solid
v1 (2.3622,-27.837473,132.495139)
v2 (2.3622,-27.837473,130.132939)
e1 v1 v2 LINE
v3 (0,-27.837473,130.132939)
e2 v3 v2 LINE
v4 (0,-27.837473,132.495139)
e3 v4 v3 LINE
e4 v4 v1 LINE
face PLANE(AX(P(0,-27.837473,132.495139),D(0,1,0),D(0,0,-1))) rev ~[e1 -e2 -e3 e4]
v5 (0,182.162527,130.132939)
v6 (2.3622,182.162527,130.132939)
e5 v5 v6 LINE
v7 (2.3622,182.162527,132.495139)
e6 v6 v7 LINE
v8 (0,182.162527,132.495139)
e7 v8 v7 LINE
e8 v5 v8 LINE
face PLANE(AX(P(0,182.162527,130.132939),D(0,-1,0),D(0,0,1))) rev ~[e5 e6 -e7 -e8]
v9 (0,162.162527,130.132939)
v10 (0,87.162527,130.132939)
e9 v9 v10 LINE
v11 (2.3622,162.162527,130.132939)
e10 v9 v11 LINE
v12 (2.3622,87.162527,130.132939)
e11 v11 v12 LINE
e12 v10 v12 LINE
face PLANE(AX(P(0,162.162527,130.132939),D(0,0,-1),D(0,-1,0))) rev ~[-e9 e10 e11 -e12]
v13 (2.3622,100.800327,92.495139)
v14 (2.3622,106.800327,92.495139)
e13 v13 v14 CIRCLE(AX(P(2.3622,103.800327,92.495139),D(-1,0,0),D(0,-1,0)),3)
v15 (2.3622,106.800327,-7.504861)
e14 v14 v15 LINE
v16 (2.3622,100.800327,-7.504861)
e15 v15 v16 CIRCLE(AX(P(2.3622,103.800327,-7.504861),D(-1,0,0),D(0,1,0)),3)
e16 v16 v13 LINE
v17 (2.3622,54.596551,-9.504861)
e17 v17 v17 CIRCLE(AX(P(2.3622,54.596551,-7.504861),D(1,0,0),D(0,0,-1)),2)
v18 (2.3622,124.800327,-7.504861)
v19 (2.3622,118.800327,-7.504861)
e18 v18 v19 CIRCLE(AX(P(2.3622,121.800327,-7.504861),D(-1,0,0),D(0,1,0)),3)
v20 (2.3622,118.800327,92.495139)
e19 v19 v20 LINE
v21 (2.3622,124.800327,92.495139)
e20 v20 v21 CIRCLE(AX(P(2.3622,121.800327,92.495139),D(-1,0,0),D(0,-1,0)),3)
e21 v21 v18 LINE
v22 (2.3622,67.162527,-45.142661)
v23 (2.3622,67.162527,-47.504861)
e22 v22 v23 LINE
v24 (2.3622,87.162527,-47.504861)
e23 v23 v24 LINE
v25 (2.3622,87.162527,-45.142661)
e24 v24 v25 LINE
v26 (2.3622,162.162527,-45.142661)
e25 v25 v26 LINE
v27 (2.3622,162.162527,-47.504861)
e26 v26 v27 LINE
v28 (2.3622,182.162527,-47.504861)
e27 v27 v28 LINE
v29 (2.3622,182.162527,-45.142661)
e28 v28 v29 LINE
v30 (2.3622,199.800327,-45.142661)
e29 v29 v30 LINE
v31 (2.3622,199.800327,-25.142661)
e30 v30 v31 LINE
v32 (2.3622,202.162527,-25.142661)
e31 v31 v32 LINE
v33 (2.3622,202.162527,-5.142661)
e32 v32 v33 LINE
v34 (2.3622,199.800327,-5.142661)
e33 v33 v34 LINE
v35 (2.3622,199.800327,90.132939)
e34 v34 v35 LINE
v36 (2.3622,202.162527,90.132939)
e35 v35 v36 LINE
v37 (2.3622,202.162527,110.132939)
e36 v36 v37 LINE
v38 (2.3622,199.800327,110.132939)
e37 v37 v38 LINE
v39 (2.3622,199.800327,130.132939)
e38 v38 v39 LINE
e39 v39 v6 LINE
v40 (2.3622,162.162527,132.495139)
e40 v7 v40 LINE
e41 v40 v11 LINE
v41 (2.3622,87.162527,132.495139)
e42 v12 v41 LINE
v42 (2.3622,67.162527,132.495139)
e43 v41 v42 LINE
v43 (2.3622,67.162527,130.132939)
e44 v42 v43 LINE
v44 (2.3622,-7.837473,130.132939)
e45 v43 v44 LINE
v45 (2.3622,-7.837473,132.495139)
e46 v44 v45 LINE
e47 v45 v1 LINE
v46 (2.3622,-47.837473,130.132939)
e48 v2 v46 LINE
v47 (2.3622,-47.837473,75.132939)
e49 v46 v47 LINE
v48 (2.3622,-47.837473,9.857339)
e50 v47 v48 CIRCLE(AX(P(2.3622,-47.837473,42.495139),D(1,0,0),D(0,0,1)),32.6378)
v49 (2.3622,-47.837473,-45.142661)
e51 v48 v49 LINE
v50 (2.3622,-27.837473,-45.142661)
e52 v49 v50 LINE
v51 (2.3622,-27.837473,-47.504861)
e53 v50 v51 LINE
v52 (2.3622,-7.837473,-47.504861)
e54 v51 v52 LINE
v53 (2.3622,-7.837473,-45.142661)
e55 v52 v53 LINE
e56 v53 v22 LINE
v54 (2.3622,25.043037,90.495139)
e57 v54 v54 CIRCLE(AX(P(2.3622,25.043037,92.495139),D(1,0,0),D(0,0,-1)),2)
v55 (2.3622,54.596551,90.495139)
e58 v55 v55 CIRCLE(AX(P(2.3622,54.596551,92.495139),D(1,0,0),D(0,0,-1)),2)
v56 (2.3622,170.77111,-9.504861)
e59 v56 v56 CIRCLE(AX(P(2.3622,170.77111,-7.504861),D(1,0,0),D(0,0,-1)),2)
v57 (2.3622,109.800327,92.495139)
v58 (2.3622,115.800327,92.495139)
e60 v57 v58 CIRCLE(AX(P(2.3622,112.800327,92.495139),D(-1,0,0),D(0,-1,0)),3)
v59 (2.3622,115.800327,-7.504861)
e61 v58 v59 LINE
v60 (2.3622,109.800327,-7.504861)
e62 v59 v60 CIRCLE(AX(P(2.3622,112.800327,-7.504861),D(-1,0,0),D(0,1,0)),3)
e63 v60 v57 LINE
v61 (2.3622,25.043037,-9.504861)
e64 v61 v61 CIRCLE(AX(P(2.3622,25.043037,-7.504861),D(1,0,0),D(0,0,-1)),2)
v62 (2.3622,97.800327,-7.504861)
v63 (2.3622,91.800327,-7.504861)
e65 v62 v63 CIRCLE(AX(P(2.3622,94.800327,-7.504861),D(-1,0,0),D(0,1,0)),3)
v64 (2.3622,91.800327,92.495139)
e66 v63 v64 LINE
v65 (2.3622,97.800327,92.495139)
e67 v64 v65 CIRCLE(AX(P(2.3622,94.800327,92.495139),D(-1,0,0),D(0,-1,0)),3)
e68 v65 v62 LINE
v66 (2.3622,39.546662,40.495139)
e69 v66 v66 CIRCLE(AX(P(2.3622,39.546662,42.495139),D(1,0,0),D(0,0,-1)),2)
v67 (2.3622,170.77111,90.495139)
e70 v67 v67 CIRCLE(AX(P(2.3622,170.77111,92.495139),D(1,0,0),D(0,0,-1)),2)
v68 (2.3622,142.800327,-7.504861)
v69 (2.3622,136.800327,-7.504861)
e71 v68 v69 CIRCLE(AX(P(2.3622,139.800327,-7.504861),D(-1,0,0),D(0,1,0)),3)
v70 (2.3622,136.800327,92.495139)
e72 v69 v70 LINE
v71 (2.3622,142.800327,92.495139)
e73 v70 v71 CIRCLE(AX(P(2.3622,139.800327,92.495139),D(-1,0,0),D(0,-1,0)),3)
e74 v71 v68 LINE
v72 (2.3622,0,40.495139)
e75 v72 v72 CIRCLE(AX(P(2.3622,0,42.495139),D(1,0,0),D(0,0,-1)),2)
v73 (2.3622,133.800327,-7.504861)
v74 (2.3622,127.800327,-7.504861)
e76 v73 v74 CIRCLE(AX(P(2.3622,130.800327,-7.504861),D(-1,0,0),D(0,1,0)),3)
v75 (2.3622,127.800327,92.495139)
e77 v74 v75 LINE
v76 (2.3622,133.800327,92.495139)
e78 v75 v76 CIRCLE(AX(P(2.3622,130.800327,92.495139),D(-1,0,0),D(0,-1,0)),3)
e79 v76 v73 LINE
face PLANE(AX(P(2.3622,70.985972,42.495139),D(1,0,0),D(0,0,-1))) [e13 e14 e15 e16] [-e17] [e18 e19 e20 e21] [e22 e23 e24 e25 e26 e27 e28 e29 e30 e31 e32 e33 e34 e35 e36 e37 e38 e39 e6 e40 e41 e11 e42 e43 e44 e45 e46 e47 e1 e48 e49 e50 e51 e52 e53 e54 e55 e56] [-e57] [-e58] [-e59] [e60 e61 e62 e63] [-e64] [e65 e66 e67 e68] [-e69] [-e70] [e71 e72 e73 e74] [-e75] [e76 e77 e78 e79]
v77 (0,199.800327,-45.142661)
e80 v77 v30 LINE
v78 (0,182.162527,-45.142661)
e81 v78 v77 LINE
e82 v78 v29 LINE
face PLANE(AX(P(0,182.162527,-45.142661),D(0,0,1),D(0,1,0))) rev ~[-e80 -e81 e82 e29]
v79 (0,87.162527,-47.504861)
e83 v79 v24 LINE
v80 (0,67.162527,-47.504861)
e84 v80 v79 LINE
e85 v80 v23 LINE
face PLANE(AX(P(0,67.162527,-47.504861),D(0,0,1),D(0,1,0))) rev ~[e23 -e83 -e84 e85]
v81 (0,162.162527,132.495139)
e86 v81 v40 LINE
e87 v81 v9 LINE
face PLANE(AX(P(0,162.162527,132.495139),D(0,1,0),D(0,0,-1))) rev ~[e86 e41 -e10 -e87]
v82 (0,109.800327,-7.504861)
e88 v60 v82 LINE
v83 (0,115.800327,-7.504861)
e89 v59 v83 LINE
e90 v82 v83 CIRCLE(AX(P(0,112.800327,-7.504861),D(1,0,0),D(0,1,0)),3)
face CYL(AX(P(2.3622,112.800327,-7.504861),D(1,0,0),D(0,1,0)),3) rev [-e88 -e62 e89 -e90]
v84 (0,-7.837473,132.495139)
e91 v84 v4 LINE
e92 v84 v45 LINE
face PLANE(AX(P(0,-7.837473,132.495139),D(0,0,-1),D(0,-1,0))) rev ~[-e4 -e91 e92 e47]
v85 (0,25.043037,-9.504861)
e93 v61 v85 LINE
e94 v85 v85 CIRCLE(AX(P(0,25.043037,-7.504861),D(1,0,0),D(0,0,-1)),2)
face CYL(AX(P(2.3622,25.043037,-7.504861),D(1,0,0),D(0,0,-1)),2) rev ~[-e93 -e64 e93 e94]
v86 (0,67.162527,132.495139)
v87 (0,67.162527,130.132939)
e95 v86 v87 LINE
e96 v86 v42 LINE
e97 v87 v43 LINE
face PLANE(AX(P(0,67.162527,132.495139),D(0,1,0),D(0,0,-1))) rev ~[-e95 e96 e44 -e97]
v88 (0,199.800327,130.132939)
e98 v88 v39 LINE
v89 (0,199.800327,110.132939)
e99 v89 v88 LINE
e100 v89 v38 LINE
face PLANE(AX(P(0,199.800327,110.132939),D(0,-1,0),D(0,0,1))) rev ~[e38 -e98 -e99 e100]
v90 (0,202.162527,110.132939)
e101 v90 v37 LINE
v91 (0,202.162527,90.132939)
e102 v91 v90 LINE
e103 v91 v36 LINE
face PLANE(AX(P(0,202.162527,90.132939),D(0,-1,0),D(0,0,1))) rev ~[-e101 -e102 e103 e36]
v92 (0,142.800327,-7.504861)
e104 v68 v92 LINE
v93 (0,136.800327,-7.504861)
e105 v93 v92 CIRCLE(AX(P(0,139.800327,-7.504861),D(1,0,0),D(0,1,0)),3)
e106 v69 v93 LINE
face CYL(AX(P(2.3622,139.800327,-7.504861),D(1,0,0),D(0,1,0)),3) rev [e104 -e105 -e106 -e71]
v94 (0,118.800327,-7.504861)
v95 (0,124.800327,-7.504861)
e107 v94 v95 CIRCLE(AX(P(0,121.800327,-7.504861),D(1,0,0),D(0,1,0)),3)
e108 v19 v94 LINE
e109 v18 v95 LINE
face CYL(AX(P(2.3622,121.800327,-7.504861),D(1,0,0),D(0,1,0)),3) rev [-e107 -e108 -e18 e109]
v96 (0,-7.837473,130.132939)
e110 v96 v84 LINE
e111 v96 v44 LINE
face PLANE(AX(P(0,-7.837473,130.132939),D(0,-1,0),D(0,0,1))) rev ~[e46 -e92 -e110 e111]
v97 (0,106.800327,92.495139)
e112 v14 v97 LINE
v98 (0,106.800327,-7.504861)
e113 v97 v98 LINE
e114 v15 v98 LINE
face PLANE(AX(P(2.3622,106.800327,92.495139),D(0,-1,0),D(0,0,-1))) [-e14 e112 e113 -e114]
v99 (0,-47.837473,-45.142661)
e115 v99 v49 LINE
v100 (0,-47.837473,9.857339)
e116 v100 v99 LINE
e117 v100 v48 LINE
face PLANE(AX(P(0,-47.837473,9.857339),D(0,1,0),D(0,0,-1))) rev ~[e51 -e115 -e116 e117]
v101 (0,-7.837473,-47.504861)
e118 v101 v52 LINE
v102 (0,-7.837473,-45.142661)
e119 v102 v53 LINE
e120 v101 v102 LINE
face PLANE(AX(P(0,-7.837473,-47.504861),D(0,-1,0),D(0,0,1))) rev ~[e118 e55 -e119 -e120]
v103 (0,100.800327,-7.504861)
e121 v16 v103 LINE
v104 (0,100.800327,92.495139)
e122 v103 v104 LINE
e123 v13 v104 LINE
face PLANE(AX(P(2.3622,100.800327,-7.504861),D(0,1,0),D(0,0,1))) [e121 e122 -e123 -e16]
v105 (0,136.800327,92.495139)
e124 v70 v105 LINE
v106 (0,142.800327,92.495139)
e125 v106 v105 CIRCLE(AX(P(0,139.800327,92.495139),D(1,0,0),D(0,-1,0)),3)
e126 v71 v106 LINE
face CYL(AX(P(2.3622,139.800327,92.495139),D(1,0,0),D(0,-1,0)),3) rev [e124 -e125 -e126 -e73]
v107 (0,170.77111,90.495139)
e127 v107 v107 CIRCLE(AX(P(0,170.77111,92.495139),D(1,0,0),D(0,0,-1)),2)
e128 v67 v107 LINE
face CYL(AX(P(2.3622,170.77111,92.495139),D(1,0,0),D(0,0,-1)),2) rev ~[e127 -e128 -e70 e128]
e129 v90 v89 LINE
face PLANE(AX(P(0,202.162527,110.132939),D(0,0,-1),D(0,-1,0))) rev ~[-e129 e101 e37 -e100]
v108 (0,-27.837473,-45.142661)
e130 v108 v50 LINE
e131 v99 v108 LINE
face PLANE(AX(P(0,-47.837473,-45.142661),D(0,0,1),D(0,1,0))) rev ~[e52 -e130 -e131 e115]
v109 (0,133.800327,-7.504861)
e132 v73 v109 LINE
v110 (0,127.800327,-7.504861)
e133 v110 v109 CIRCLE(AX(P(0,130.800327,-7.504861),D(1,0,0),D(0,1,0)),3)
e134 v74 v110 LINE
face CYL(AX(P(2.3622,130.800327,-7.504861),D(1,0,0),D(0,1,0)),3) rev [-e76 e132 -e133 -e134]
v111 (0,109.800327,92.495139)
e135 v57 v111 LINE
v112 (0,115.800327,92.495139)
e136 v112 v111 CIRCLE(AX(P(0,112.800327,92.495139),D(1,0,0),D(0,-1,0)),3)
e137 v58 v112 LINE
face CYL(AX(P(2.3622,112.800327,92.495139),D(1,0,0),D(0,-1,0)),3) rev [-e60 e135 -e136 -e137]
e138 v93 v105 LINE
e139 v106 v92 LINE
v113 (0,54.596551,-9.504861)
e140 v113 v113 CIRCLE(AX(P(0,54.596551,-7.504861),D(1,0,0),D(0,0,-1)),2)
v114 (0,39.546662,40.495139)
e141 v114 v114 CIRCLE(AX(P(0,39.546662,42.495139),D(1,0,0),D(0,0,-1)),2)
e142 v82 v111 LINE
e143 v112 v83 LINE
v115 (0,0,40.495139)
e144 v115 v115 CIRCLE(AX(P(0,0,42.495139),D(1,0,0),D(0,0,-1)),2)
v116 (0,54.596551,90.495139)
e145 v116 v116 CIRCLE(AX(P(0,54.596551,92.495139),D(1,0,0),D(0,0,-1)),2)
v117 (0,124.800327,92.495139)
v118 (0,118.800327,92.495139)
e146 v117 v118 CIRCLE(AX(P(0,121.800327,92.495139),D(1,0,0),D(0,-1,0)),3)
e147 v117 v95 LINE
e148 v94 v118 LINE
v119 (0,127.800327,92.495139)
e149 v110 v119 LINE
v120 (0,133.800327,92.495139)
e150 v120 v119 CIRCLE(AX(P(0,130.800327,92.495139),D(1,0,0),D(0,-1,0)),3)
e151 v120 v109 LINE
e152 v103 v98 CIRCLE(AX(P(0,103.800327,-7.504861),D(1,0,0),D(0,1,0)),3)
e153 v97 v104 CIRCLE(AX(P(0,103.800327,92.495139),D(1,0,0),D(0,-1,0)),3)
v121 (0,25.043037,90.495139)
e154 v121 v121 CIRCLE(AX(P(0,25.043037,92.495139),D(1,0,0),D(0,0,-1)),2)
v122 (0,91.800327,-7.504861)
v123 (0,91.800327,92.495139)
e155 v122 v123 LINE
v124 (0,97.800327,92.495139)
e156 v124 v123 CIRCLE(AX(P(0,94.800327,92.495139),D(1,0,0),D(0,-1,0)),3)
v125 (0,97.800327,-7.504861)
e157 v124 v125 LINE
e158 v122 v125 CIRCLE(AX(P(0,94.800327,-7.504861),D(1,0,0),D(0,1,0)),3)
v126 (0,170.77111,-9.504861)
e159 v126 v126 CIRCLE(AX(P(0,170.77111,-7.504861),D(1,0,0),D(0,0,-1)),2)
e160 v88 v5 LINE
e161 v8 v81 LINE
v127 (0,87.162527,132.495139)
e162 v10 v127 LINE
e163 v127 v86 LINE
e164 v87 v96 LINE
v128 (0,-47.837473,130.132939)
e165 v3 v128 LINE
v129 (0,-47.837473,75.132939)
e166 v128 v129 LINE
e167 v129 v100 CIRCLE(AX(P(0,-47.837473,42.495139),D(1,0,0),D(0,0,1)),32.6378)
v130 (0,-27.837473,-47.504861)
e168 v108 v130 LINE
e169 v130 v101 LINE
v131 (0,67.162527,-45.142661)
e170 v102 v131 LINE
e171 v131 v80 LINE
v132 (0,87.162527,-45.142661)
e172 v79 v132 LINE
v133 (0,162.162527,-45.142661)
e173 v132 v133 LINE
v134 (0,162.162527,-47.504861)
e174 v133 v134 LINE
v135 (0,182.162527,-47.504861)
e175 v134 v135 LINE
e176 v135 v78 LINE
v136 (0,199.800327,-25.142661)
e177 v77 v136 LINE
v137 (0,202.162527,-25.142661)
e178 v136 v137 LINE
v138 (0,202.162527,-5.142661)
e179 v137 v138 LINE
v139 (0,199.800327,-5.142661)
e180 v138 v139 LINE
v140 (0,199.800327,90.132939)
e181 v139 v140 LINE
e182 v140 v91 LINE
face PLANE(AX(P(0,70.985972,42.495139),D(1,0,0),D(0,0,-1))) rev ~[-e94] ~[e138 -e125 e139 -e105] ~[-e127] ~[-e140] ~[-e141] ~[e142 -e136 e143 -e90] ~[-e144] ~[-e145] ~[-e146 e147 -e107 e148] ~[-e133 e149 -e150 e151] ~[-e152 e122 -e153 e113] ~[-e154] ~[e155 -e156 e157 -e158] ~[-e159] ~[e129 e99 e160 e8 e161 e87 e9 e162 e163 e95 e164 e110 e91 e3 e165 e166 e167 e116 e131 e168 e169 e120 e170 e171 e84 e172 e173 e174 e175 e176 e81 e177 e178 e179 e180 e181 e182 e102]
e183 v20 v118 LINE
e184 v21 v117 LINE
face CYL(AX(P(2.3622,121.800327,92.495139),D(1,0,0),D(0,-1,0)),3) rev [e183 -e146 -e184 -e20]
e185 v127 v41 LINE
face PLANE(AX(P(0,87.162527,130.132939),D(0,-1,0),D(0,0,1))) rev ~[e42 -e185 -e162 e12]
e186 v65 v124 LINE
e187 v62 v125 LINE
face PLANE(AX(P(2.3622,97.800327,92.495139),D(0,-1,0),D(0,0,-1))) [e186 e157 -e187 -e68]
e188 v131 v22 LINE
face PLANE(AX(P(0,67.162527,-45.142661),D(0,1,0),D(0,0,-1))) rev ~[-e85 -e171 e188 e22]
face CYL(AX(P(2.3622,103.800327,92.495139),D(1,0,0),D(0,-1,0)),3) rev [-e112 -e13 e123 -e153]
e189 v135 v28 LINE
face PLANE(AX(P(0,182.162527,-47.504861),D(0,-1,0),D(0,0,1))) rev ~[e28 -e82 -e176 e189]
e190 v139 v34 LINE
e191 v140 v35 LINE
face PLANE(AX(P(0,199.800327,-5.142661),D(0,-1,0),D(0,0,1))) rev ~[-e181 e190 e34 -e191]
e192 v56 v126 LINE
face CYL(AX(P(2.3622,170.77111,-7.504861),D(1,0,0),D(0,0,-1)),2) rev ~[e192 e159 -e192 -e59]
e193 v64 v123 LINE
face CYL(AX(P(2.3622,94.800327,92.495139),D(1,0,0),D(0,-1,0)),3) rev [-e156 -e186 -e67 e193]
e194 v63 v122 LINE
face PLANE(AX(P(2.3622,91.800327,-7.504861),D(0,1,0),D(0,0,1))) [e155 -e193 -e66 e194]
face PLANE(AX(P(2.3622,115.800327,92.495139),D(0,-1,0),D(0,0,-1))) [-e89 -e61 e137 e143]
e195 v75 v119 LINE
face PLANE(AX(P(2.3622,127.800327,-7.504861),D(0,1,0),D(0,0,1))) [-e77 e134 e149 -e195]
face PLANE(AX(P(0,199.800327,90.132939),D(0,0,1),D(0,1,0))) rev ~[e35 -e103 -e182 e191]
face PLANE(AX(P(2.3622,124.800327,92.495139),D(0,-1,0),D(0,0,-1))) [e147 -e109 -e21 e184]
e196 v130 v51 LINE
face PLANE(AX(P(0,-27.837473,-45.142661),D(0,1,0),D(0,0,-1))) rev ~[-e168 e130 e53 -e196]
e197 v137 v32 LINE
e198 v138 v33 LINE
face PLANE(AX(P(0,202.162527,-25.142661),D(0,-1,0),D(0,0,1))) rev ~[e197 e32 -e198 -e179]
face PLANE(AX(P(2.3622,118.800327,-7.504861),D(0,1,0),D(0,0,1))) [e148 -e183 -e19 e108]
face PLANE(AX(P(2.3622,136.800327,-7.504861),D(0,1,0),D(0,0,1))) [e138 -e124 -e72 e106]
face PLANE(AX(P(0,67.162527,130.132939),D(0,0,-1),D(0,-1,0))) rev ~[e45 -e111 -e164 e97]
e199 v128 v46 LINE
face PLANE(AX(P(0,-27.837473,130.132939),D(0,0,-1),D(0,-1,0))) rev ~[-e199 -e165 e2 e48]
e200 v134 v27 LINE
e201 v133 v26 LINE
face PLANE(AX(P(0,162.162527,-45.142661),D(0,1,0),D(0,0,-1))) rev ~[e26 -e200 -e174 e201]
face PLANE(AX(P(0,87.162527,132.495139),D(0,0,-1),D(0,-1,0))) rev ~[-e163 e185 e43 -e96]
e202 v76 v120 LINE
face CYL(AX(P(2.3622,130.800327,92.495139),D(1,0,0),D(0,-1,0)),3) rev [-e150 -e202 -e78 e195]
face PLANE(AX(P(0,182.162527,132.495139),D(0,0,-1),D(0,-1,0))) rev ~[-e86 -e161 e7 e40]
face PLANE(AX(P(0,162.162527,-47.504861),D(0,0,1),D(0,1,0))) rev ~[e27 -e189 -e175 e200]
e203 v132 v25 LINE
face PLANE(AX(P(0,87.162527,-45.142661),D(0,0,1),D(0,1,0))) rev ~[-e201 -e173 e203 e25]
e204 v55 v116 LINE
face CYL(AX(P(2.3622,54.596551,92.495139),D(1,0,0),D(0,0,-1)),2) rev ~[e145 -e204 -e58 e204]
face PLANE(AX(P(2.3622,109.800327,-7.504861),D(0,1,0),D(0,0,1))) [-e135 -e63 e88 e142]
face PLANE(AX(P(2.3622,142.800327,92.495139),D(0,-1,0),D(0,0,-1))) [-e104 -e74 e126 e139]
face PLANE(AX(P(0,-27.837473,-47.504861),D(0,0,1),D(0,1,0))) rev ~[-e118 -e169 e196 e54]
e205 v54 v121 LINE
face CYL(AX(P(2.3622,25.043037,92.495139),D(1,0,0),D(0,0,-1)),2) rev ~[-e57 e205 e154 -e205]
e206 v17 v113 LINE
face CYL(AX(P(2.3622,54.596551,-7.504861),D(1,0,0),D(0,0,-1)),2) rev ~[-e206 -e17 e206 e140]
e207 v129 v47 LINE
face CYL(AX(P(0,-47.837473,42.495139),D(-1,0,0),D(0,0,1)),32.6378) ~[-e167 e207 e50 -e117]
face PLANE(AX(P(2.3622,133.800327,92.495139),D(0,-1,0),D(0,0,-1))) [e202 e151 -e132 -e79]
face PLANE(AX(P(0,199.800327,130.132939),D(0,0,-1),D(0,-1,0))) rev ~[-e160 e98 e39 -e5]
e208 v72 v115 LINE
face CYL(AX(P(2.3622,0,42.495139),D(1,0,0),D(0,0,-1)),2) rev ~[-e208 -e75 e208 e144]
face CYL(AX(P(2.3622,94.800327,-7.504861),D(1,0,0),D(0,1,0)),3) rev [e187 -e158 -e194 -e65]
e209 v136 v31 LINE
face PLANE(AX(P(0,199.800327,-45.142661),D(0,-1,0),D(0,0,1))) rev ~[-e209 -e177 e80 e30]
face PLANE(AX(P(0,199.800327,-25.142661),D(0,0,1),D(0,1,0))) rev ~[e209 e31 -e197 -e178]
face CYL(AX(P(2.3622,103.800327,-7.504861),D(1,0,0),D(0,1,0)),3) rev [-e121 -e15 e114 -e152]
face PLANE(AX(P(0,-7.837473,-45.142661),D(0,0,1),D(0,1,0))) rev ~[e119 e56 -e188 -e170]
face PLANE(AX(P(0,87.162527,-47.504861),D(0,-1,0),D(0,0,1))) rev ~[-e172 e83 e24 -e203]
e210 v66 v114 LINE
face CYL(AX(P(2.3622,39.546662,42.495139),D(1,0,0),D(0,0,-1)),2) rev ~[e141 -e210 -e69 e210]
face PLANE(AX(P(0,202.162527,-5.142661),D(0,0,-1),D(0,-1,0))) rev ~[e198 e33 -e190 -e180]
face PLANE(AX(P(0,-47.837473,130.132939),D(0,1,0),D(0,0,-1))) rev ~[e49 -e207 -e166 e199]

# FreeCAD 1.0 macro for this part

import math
import FreeCAD as App
import Part
import Sketcher
from FreeCAD import Vector

doc = App.newDocument("Part")
body = doc.addObject("PartDesign::Body", "Body")

# Sketch on YZ plane
sketch1 = body.newObject("Sketcher::SketchObject", "Sketch")
sketch1.AttachmentSupport = (doc.getObject("YZ_Plane"), [""])
sketch1.MapMode = "FlatFace"
sketch1.addGeometry(Part.LineSegment(Vector(199.8, 130.1, 0), Vector(182.2, 130.1, 0)), False)
sketch1.addGeometry(Part.LineSegment(Vector(182.2, 130.1, 0), Vector(182.2, 132.5, 0)), False)
sketch1.addGeometry(Part.LineSegment(Vector(182.2, 132.5, 0), Vector(162.2, 132.5, 0)), False)
sketch1.addGeometry(Part.LineSegment(Vector(162.2, 132.5, 0), Vector(162.2, 130.1, 0)), False)
sketch1.addGeometry(Part.LineSegment(Vector(162.2, 130.1, 0), Vector(87.2, 130.1, 0)), False)
sketch1.addGeometry(Part.LineSegment(Vector(87.2, 130.1, 0), Vector(87.2, 132.5, 0)), False)
sketch1.addGeometry(Part.LineSegment(Vector(87.2, 132.5, 0), Vector(67.2, 132.5, 0)), False)
sketch1.addGeometry(Part.LineSegment(Vector(67.2, 132.5, 0), Vector(67.2, 130.1, 0)), False)
sketch1.addGeometry(Part.LineSegment(Vector(67.2, 130.1, 0), Vector(-7.8, 130.1, 0)), False)
sketch1.addGeometry(Part.LineSegment(Vector(-7.8, 130.1, 0), Vector(-7.8, 132.5, 0)), False)
sketch1.addGeometry(Part.LineSegment(Vector(-7.8, 132.5, 0), Vector(-27.8, 132.5, 0)), False)
sketch1.addGeometry(Part.LineSegment(Vector(-27.8, 132.5, 0), Vector(-27.8, 130.1, 0)), False)
sketch1.addGeometry(Part.LineSegment(Vector(-27.8, 130.1, 0), Vector(-47.8, 130.1, 0)), False)
sketch1.addGeometry(Part.LineSegment(Vector(-47.8, 130.1, 0), Vector(-47.8, 75.1, 0)), False)
sketch1.addGeometry(Part.ArcOfCircle(Part.Circle(Vector(-47.8, 42.5, 0), Vector(0, 0, 1), 32.6), math.radians(90), math.radians(270)), False)
sketch1.addGeometry(Part.LineSegment(Vector(-47.8, 9.9, 0), Vector(-47.8, -45.1, 0)), False)
sketch1.addGeometry(Part.LineSegment(Vector(-47.8, -45.1, 0), Vector(-27.8, -45.1, 0)), False)
sketch1.addGeometry(Part.LineSegment(Vector(-27.8, -45.1, 0), Vector(-27.8, -47.5, 0)), False)
sketch1.addGeometry(Part.LineSegment(Vector(-27.8, -47.5, 0), Vector(-7.8, -47.5, 0)), False)
sketch1.addGeometry(Part.LineSegment(Vector(-7.8, -47.5, 0), Vector(-7.8, -45.1, 0)), False)
sketch1.addGeometry(Part.LineSegment(Vector(-7.8, -45.1, 0), Vector(67.2, -45.1, 0)), False)
sketch1.addGeometry(Part.LineSegment(Vector(67.2, -45.1, 0), Vector(67.2, -47.5, 0)), False)
sketch1.addGeometry(Part.LineSegment(Vector(67.2, -47.5, 0), Vector(87.2, -47.5, 0)), False)
sketch1.addGeometry(Part.LineSegment(Vector(87.2, -47.5, 0), Vector(87.2, -45.1, 0)), False)
sketch1.addGeometry(Part.LineSegment(Vector(87.2, -45.1, 0), Vector(162.2, -45.1, 0)), False)
sketch1.addGeometry(Part.LineSegment(Vector(162.2, -45.1, 0), Vector(162.2, -47.5, 0)), False)
sketch1.addGeometry(Part.LineSegment(Vector(162.2, -47.5, 0), Vector(182.2, -47.5, 0)), False)
sketch1.addGeometry(Part.LineSegment(Vector(182.2, -47.5, 0), Vector(182.2, -45.1, 0)), False)
sketch1.addGeometry(Part.LineSegment(Vector(182.2, -45.1, 0), Vector(199.8, -45.1, 0)), False)
sketch1.addGeometry(Part.LineSegment(Vector(199.8, -45.1, 0), Vector(199.8, -25.1, 0)), False)
sketch1.addGeometry(Part.LineSegment(Vector(199.8, -25.1, 0), Vector(202.2, -25.1, 0)), False)
sketch1.addGeometry(Part.LineSegment(Vector(202.2, -25.1, 0), Vector(202.2, -5.1, 0)), False)
sketch1.addGeometry(Part.LineSegment(Vector(202.2, -5.1, 0), Vector(199.8, -5.1, 0)), False)
sketch1.addGeometry(Part.LineSegment(Vector(199.8, -5.1, 0), Vector(199.8, 90.1, 0)), False)
sketch1.addGeometry(Part.LineSegment(Vector(199.8, 90.1, 0), Vector(202.2, 90.1, 0)), False)
sketch1.addGeometry(Part.LineSegment(Vector(202.2, 90.1, 0), Vector(202.2, 110.1, 0)), False)
sketch1.addGeometry(Part.LineSegment(Vector(202.2, 110.1, 0), Vector(199.8, 110.1, 0)), False)
sketch1.addGeometry(Part.LineSegment(Vector(199.8, 110.1, 0), Vector(199.8, 130.1, 0)), False)
sketch1.addConstraint(Sketcher.Constraint("Coincident", 0, 2, 1, 1))
sketch1.addConstraint(Sketcher.Constraint("Coincident", 1, 2, 2, 1))
sketch1.addConstraint(Sketcher.Constraint("Coincident", 2, 2, 3, 1))
sketch1.addConstraint(Sketcher.Constraint("Coincident", 3, 2, 4, 1))
sketch1.addConstraint(Sketcher.Constraint("Coincident", 4, 2, 5, 1))
sketch1.addConstraint(Sketcher.Constraint("Coincident", 5, 2, 6, 1))
sketch1.addConstraint(Sketcher.Constraint("Coincident", 6, 2, 7, 1))
sketch1.addConstraint(Sketcher.Constraint("Coincident", 7, 2, 8, 1))
sketch1.addConstraint(Sketcher.Constraint("Coincident", 8, 2, 9, 1))
sketch1.addConstraint(Sketcher.Constraint("Coincident", 9, 2, 10, 1))
sketch1.addConstraint(Sketcher.Constraint("Coincident", 10, 2, 11, 1))
sketch1.addConstraint(Sketcher.Constraint("Coincident", 11, 2, 12, 1))
sketch1.addConstraint(Sketcher.Constraint("Coincident", 12, 2, 13, 1))
sketch1.addConstraint(Sketcher.Constraint("Coincident", 13, 2, 14, 1))
sketch1.addConstraint(Sketcher.Constraint("Coincident", 14, 2, 15, 1))
sketch1.addConstraint(Sketcher.Constraint("Coincident", 15, 2, 16, 1))
sketch1.addConstraint(Sketcher.Constraint("Coincident", 16, 2, 17, 1))
sketch1.addConstraint(Sketcher.Constraint("Coincident", 17, 2, 18, 1))
sketch1.addConstraint(Sketcher.Constraint("Coincident", 18, 2, 19, 1))
sketch1.addConstraint(Sketcher.Constraint("Coincident", 19, 2, 20, 1))
sketch1.addConstraint(Sketcher.Constraint("Coincident", 20, 2, 21, 1))
sketch1.addConstraint(Sketcher.Constraint("Coincident", 21, 2, 22, 1))
sketch1.addConstraint(Sketcher.Constraint("Coincident", 22, 2, 23, 1))
sketch1.addConstraint(Sketcher.Constraint("Coincident", 23, 2, 24, 1))
sketch1.addConstraint(Sketcher.Constraint("Coincident", 24, 2, 25, 1))
sketch1.addConstraint(Sketcher.Constraint("Coincident", 25, 2, 26, 1))
sketch1.addConstraint(Sketcher.Constraint("Coincident", 26, 2, 27, 1))
sketch1.addConstraint(Sketcher.Constraint("Coincident", 27, 2, 28, 1))
sketch1.addConstraint(Sketcher.Constraint("Coincident", 28, 2, 29, 1))
sketch1.addConstraint(Sketcher.Constraint("Coincident", 29, 2, 30, 1))
sketch1.addConstraint(Sketcher.Constraint("Coincident", 30, 2, 31, 1))
sketch1.addConstraint(Sketcher.Constraint("Coincident", 31, 2, 32, 1))
sketch1.addConstraint(Sketcher.Constraint("Coincident", 32, 2, 33, 1))
sketch1.addConstraint(Sketcher.Constraint("Coincident", 33, 2, 34, 1))
sketch1.addConstraint(Sketcher.Constraint("Coincident", 34, 2, 35, 1))
sketch1.addConstraint(Sketcher.Constraint("Coincident", 35, 2, 36, 1))
sketch1.addConstraint(Sketcher.Constraint("Coincident", 36, 2, 37, 1))
sketch1.addConstraint(Sketcher.Constraint("Coincident", 37, 2, 0, 1))
sketch1.addConstraint(Sketcher.Constraint("Horizontal", 0))
sketch1.addConstraint(Sketcher.Constraint("Vertical", 1))
sketch1.addConstraint(Sketcher.Constraint("Horizontal", 2))
sketch1.addConstraint(Sketcher.Constraint("Vertical", 3))
sketch1.addConstraint(Sketcher.Constraint("Horizontal", 4))
sketch1.addConstraint(Sketcher.Constraint("Vertical", 5))
sketch1.addConstraint(Sketcher.Constraint("Horizontal", 6))
sketch1.addConstraint(Sketcher.Constraint("Vertical", 7))
sketch1.addConstraint(Sketcher.Constraint("Horizontal", 8))
sketch1.addConstraint(Sketcher.Constraint("Vertical", 9))
sketch1.addConstraint(Sketcher.Constraint("Horizontal", 10))
sketch1.addConstraint(Sketcher.Constraint("Vertical", 11))
sketch1.addConstraint(Sketcher.Constraint("Horizontal", 12))
sketch1.addConstraint(Sketcher.Constraint("Vertical", 13))
sketch1.addConstraint(Sketcher.Constraint("Vertical", 15))
sketch1.addConstraint(Sketcher.Constraint("Horizontal", 16))
sketch1.addConstraint(Sketcher.Constraint("Vertical", 17))
sketch1.addConstraint(Sketcher.Constraint("Horizontal", 18))
sketch1.addConstraint(Sketcher.Constraint("Vertical", 19))
sketch1.addConstraint(Sketcher.Constraint("Horizontal", 20))
sketch1.addConstraint(Sketcher.Constraint("Vertical", 21))
sketch1.addConstraint(Sketcher.Constraint("Horizontal", 22))
sketch1.addConstraint(Sketcher.Constraint("Vertical", 23))
sketch1.addConstraint(Sketcher.Constraint("Horizontal", 24))
sketch1.addConstraint(Sketcher.Constraint("Vertical", 25))
sketch1.addConstraint(Sketcher.Constraint("Horizontal", 26))
sketch1.addConstraint(Sketcher.Constraint("Vertical", 27))
sketch1.addConstraint(Sketcher.Constraint("Horizontal", 28))
sketch1.addConstraint(Sketcher.Constraint("Vertical", 29))
sketch1.addConstraint(Sketcher.Constraint("Horizontal", 30))
sketch1.addConstraint(Sketcher.Constraint("Vertical", 31))
sketch1.addConstraint(Sketcher.Constraint("Horizontal", 32))
sketch1.addConstraint(Sketcher.Constraint("Vertical", 33))
sketch1.addConstraint(Sketcher.Constraint("Horizontal", 34))
sketch1.addConstraint(Sketcher.Constraint("Vertical", 35))
sketch1.addConstraint(Sketcher.Constraint("Horizontal", 36))
sketch1.addConstraint(Sketcher.Constraint("Vertical", 37))
sketch1.addConstraint(Sketcher.Constraint("Horizontal", 0, 2, 3, 2))
sketch1.addConstraint(Sketcher.Constraint("Horizontal", 2, 2, 5, 2))
sketch1.addConstraint(Sketcher.Constraint("Horizontal", 4, 2, 7, 2))
sketch1.addConstraint(Sketcher.Constraint("Horizontal", 6, 2, 9, 2))
sketch1.addConstraint(Sketcher.Constraint("Horizontal", 8, 2, 11, 2))
sketch1.addConstraint(Sketcher.Constraint("Horizontal", 16, 2, 19, 2))
sketch1.addConstraint(Sketcher.Constraint("Horizontal", 18, 2, 21, 2))
sketch1.addConstraint(Sketcher.Constraint("Horizontal", 20, 2, 23, 2))
sketch1.addConstraint(Sketcher.Constraint("Horizontal", 22, 2, 25, 2))
sketch1.addConstraint(Sketcher.Constraint("Horizontal", 24, 2, 27, 2))
sketch1.addConstraint(Sketcher.Constraint("Vertical", 14, 3, 12, 2))
sketch1.addConstraint(Sketcher.Constraint("Vertical", 13, 2, 14, 2))
sketch1.addConstraint(Sketcher.Constraint("Vertical", 11, 2, 16, 2))
sketch1.addConstraint(Sketcher.Constraint("Vertical", 9, 2, 18, 2))
sketch1.addConstraint(Sketcher.Constraint("Vertical", 7, 2, 20, 2))
sketch1.addConstraint(Sketcher.Constraint("Vertical", 5, 2, 22, 2))
sketch1.addConstraint(Sketcher.Constraint("Vertical", 3, 2, 24, 2))
sketch1.addConstraint(Sketcher.Constraint("Vertical", 1, 2, 26, 2))
sketch1.addConstraint(Sketcher.Constraint("Vertical", 29, 2, 32, 2))
sketch1.addConstraint(Sketcher.Constraint("Vertical", 31, 2, 34, 2))
sketch1.addConstraint(Sketcher.Constraint("Vertical", 33, 2, 36, 2))
sketch1.addConstraint(Sketcher.Constraint("Equal", 2, 6))
sketch1.addConstraint(Sketcher.Constraint("Equal", 4, 8))
sketch1.addConstraint(Sketcher.Constraint("Equal", 6, 10))
sketch1.addConstraint(Sketcher.Constraint("Equal", 10, 12))
sketch1.addConstraint(Sketcher.Constraint("Equal", 36, 1))
sketch1.addConstraint(Sketcher.Constraint("Equal", 13, 15))
sketch1.addConstraint(Sketcher.Constraint("Equal", 11, 17))
sketch1.addConstraint(Sketcher.Constraint("Equal", 26, 29))
sketch1.addConstraint(Sketcher.Constraint("Equal", 29, 31))
sketch1.addConstraint(Sketcher.Constraint("Equal", 31, 35))
sketch1.addConstraint(Sketcher.Constraint("Equal", 35, 37))
sketch1.addConstraint(Sketcher.Constraint("DistanceX", 2, 2, 2, 1, 20.0))
sketch1.addConstraint(Sketcher.Constraint("DistanceX", 4, 2, 4, 1, 75.0))
sketch1.addConstraint(Sketcher.Constraint("DistanceY", 13, 2, 13, 1, 55.0))
sketch1.addConstraint(Sketcher.Constraint("DistanceY", 14, 3, 1, 2, 90.0))
sketch1.addConstraint(Sketcher.Constraint("DistanceX", 27, 2, 30, 2, 20.0))
sketch1.addConstraint(Sketcher.Constraint("Radius", 14, 32.6378))
sketch1.addConstraint(Sketcher.Constraint("DistanceY", -1, 1, 14, 3, 42.495139))
sketch1.addConstraint(Sketcher.Constraint("DistanceX", 14, 3, -1, 1, 47.837473))
pad1 = body.newObject("PartDesign::Pad", "Pad")
pad1.Profile = sketch1
pad1.Length = 2.3622

# Sketch on YZ plane
sketch2 = body.newObject("Sketcher::SketchObject", "Sketch001")
sketch2.AttachmentSupport = (doc.getObject("YZ_Plane"), [""])
sketch2.MapMode = "FlatFace"
sketch2.AttachmentOffset = App.Placement(Vector(0, 0, 2.3622), App.Rotation())
sketch2.addGeometry(Part.Circle(Vector(54.6, 92.5, 0), Vector(0, 0, 1), 2), False)
sketch2.addGeometry(Part.Circle(Vector(54.6, -7.5, 0), Vector(0, 0, 1), 2), False)
sketch2.addGeometry(Part.Circle(Vector(25, -7.5, 0), Vector(0, 0, 1), 2), False)
sketch2.addGeometry(Part.Circle(Vector(170.8, 92.5, 0), Vector(0, 0, 1), 2), False)
sketch2.addGeometry(Part.Circle(Vector(170.8, -7.5, 0), Vector(0, 0, 1), 2), False)
sketch2.addGeometry(Part.Circle(Vector(25, 92.5, 0), Vector(0, 0, 1), 2), False)
sketch2.addGeometry(Part.Circle(Vector(39.5, 42.5, 0), Vector(0, 0, 1), 2), False)
sketch2.addGeometry(Part.Circle(Vector(0, 42.5, 0), Vector(0, 0, 1), 2), False)
sketch2.addGeometry(Part.LineSegment(Vector(142.8, -7.5, 0), Vector(142.8, 92.5, 0)), False)
sketch2.addGeometry(Part.ArcOfCircle(Part.Circle(Vector(139.8, 92.5, 0), Vector(0, 0, 1), 3), math.radians(0), math.radians(180)), False)
sketch2.addGeometry(Part.LineSegment(Vector(136.8, 92.5, 0), Vector(136.8, -7.5, 0)), False)
sketch2.addGeometry(Part.ArcOfCircle(Part.Circle(Vector(139.8, -7.5, 0), Vector(0, 0, 1), 3), math.radians(180), math.radians(360)), False)
sketch2.addGeometry(Part.LineSegment(Vector(133.8, -7.5, 0), Vector(133.8, 92.5, 0)), False)
sketch2.addGeometry(Part.ArcOfCircle(Part.Circle(Vector(130.8, 92.5, 0), Vector(0, 0, 1), 3), math.radians(0), math.radians(180)), False)
sketch2.addGeometry(Part.LineSegment(Vector(127.8, 92.5, 0), Vector(127.8, -7.5, 0)), False)
sketch2.addGeometry(Part.ArcOfCircle(Part.Circle(Vector(130.8, -7.5, 0), Vector(0, 0, 1), 3), math.radians(180), math.radians(360)), False)
sketch2.addGeometry(Part.LineSegment(Vector(124.8, -7.5, 0), Vector(124.8, 92.5, 0)), False)
sketch2.addGeometry(Part.ArcOfCircle(Part.Circle(Vector(121.8, 92.5, 0), Vector(0, 0, 1), 3), math.radians(0), math.radians(180)), False)
sketch2.addGeometry(Part.LineSegment(Vector(118.8, 92.5, 0), Vector(118.8, -7.5, 0)), False)
sketch2.addGeometry(Part.ArcOfCircle(Part.Circle(Vector(121.8, -7.5, 0), Vector(0, 0, 1), 3), math.radians(180), math.radians(360)), False)
sketch2.addGeometry(Part.LineSegment(Vector(115.8, -7.5, 0), Vector(115.8, 92.5, 0)), False)
sketch2.addGeometry(Part.ArcOfCircle(Part.Circle(Vector(112.8, 92.5, 0), Vector(0, 0, 1), 3), math.radians(0), math.radians(180)), False)
sketch2.addGeometry(Part.LineSegment(Vector(109.8, 92.5, 0), Vector(109.8, -7.5, 0)), False)
sketch2.addGeometry(Part.ArcOfCircle(Part.Circle(Vector(112.8, -7.5, 0), Vector(0, 0, 1), 3), math.radians(180), math.radians(360)), False)
sketch2.addGeometry(Part.LineSegment(Vector(106.8, -7.5, 0), Vector(106.8, 92.5, 0)), False)
sketch2.addGeometry(Part.ArcOfCircle(Part.Circle(Vector(103.8, 92.5, 0), Vector(0, 0, 1), 3), math.radians(0), math.radians(180)), False)
sketch2.addGeometry(Part.LineSegment(Vector(100.8, 92.5, 0), Vector(100.8, -7.5, 0)), False)
sketch2.addGeometry(Part.ArcOfCircle(Part.Circle(Vector(103.8, -7.5, 0), Vector(0, 0, 1), 3), math.radians(180), math.radians(360)), False)
sketch2.addGeometry(Part.LineSegment(Vector(97.8, -7.5, 0), Vector(97.8, 92.5, 0)), False)
sketch2.addGeometry(Part.ArcOfCircle(Part.Circle(Vector(94.8, 92.5, 0), Vector(0, 0, 1), 3), math.radians(0), math.radians(180)), False)
sketch2.addGeometry(Part.LineSegment(Vector(91.8, 92.5, 0), Vector(91.8, -7.5, 0)), False)
sketch2.addGeometry(Part.ArcOfCircle(Part.Circle(Vector(94.8, -7.5, 0), Vector(0, 0, 1), 3), math.radians(180), math.radians(360)), False)
sketch2.addConstraint(Sketcher.Constraint("Tangent", 8, 2, 9, 1))
sketch2.addConstraint(Sketcher.Constraint("Tangent", 9, 2, 10, 1))
sketch2.addConstraint(Sketcher.Constraint("Tangent", 10, 2, 11, 1))
sketch2.addConstraint(Sketcher.Constraint("Tangent", 11, 2, 8, 1))
sketch2.addConstraint(Sketcher.Constraint("Tangent", 12, 2, 13, 1))
sketch2.addConstraint(Sketcher.Constraint("Tangent", 13, 2, 14, 1))
sketch2.addConstraint(Sketcher.Constraint("Tangent", 14, 2, 15, 1))
sketch2.addConstraint(Sketcher.Constraint("Tangent", 15, 2, 12, 1))
sketch2.addConstraint(Sketcher.Constraint("Tangent", 16, 2, 17, 1))
sketch2.addConstraint(Sketcher.Constraint("Tangent", 17, 2, 18, 1))
sketch2.addConstraint(Sketcher.Constraint("Tangent", 18, 2, 19, 1))
sketch2.addConstraint(Sketcher.Constraint("Tangent", 19, 2, 16, 1))
sketch2.addConstraint(Sketcher.Constraint("Tangent", 20, 2, 21, 1))
sketch2.addConstraint(Sketcher.Constraint("Tangent", 21, 2, 22, 1))
sketch2.addConstraint(Sketcher.Constraint("Tangent", 22, 2, 23, 1))
sketch2.addConstraint(Sketcher.Constraint("Tangent", 23, 2, 20, 1))
sketch2.addConstraint(Sketcher.Constraint("Tangent", 24, 2, 25, 1))
sketch2.addConstraint(Sketcher.Constraint("Tangent", 25, 2, 26, 1))
sketch2.addConstraint(Sketcher.Constraint("Tangent", 26, 2, 27, 1))
sketch2.addConstraint(Sketcher.Constraint("Tangent", 27, 2, 24, 1))
sketch2.addConstraint(Sketcher.Constraint("Tangent", 28, 2, 29, 1))
sketch2.addConstraint(Sketcher.Constraint("Tangent", 29, 2, 30, 1))
sketch2.addConstraint(Sketcher.Constraint("Tangent", 30, 2, 31, 1))
sketch2.addConstraint(Sketcher.Constraint("Tangent", 31, 2, 28, 1))
sketch2.addConstraint(Sketcher.Constraint("Vertical", 8))
sketch2.addConstraint(Sketcher.Constraint("Vertical", 10))
sketch2.addConstraint(Sketcher.Constraint("Vertical", 12))
sketch2.addConstraint(Sketcher.Constraint("Vertical", 14))
sketch2.addConstraint(Sketcher.Constraint("Vertical", 16))
sketch2.addConstraint(Sketcher.Constraint("Vertical", 18))
sketch2.addConstraint(Sketcher.Constraint("Vertical", 20))
sketch2.addConstraint(Sketcher.Constraint("Vertical", 22))
sketch2.addConstraint(Sketcher.Constraint("Vertical", 24))
sketch2.addConstraint(Sketcher.Constraint("Vertical", 26))
sketch2.addConstraint(Sketcher.Constraint("Vertical", 28))
sketch2.addConstraint(Sketcher.Constraint("Vertical", 30))
sketch2.addConstraint(Sketcher.Constraint("Equal", 0, 1))
sketch2.addConstraint(Sketcher.Constraint("Equal", 1, 2))
sketch2.addConstraint(Sketcher.Constraint("Equal", 2, 3))
sketch2.addConstraint(Sketcher.Constraint("Equal", 3, 4))
sketch2.addConstraint(Sketcher.Constraint("Equal", 4, 5))
sketch2.addConstraint(Sketcher.Constraint("Equal", 5, 6))
sketch2.addConstraint(Sketcher.Constraint("Equal", 6, 7))
sketch2.addConstraint(Sketcher.Constraint("Equal", 11, 13))
sketch2.addConstraint(Sketcher.Constraint("Equal", 15, 17))
sketch2.addConstraint(Sketcher.Constraint("Equal", 19, 21))
sketch2.addConstraint(Sketcher.Constraint("Equal", 23, 25))
sketch2.addConstraint(Sketcher.Constraint("Equal", 27, 29))
sketch2.addConstraint(Sketcher.Constraint("PointOnObject", 7, 3, -2))
sketch2.addConstraint(Sketcher.Constraint("Horizontal", 1, 3, 2, 3))
sketch2.addConstraint(Sketcher.Constraint("Horizontal", 0, 3, 3, 3))
sketch2.addConstraint(Sketcher.Constraint("Horizontal", 2, 3, 4, 3))
sketch2.addConstraint(Sketcher.Constraint("Horizontal", 3, 3, 5, 3))
sketch2.addConstraint(Sketcher.Constraint("Horizontal", 6, 3, 7, 3))
sketch2.addConstraint(Sketcher.Constraint("Horizontal", 5, 3, 9, 3))
sketch2.addConstraint(Sketcher.Constraint("Horizontal", 4, 3, 11, 3))
sketch2.addConstraint(Sketcher.Constraint("Horizontal", 9, 3, 13, 3))
sketch2.addConstraint(Sketcher.Constraint("Horizontal", 11, 3, 15, 3))
sketch2.addConstraint(Sketcher.Constraint("Horizontal", 13, 3, 17, 3))
sketch2.addConstraint(Sketcher.Constraint("Horizontal", 15, 3, 19, 3))
sketch2.addConstraint(Sketcher.Constraint("Horizontal", 17, 3, 21, 3))
sketch2.addConstraint(Sketcher.Constraint("Horizontal", 19, 3, 23, 3))
sketch2.addConstraint(Sketcher.Constraint("Horizontal", 21, 3, 25, 3))
sketch2.addConstraint(Sketcher.Constraint("Horizontal", 23, 3, 27, 3))
sketch2.addConstraint(Sketcher.Constraint("Horizontal", 25, 3, 29, 3))
sketch2.addConstraint(Sketcher.Constraint("Horizontal", 27, 3, 31, 3))
sketch2.addConstraint(Sketcher.Constraint("Vertical", 0, 3, 1, 3))
sketch2.addConstraint(Sketcher.Constraint("Vertical", 3, 3, 4, 3))
sketch2.addConstraint(Sketcher.Constraint("Vertical", 2, 3, 5, 3))
sketch2.addConstraint(Sketcher.Constraint("Diameter", 0, 4.0))
sketch2.addConstraint(Sketcher.Constraint("Radius", 9, 3.0))
sketch2.addConstraint(Sketcher.Constraint("DistanceY", 8, 1, 8, 2, 100.0))
sketch2.addConstraint(Sketcher.Constraint("DistanceY", 2, 3, 6, 3, 50.0))
sketch2.addConstraint(Sketcher.Constraint("DistanceX", 13, 3, 9, 3, 9.0))
sketch2.addConstraint(Sketcher.Constraint("DistanceX", 17, 3, 13, 3, 9.0))
sketch2.addConstraint(Sketcher.Constraint("DistanceX", 21, 3, 17, 3, 9.0))
sketch2.addConstraint(Sketcher.Constraint("DistanceX", 25, 3, 21, 3, 9.0))
sketch2.addConstraint(Sketcher.Constraint("DistanceX", 29, 3, 25, 3, 9.0))
sketch2.addConstraint(Sketcher.Constraint("DistanceX", -1, 1, 0, 3, 54.596551))
sketch2.addConstraint(Sketcher.Constraint("DistanceY", -1, 1, 0, 3, 92.495139))
sketch2.addConstraint(Sketcher.Constraint("DistanceX", -1, 1, 3, 3, 170.77111))
sketch2.addConstraint(Sketcher.Constraint("DistanceX", 6, 3, 0, 3, 15.049889))
sketch2.addConstraint(Sketcher.Constraint("DistanceX", 5, 3, 9, 3, 114.757289))
sketch2.addConstraint(Sketcher.Constraint("DistanceX", -1, 1, 2, 3, 25.043037))
pocket1 = body.newObject("PartDesign::Pocket", "Pocket")
pocket1.Profile = sketch2
pocket1.Type = "ThroughAll"

doc.recompute()
